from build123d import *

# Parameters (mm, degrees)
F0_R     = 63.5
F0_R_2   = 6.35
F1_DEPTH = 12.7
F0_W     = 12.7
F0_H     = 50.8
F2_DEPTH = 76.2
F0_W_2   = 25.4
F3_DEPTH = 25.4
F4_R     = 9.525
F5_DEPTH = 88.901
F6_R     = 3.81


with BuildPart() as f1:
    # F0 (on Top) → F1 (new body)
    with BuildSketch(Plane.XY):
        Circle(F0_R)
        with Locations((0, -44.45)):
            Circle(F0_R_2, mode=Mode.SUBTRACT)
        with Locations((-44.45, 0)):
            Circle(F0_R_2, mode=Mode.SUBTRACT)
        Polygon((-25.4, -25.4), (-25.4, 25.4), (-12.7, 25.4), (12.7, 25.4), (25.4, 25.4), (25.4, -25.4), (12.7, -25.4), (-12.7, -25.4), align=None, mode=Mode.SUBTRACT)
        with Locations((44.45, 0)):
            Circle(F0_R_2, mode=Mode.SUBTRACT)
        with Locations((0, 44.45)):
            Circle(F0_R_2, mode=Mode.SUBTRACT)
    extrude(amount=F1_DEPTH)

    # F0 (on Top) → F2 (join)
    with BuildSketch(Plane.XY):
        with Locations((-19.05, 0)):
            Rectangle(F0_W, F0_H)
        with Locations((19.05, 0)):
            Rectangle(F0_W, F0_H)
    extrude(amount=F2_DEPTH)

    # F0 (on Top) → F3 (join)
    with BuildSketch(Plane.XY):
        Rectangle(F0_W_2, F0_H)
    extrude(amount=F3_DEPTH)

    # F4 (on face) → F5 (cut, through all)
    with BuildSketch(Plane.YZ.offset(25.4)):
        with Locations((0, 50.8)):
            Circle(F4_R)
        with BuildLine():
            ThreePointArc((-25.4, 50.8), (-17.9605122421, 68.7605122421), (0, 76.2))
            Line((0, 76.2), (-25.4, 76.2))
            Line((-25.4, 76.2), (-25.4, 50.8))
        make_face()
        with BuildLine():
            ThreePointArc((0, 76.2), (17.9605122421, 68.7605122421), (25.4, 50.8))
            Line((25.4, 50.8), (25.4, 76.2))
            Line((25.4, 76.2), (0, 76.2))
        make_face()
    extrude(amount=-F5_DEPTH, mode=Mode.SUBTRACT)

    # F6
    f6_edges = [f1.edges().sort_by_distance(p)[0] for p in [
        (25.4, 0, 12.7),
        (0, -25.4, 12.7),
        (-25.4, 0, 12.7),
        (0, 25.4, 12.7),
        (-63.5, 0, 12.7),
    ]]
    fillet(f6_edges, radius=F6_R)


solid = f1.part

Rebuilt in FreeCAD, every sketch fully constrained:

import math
import FreeCAD as App
import Part
import Sketcher

V = App.Vector
Q = App.Units.Quantity


def edges_at(feature, points):
    """Names of the edges that pass closest to the given points."""
    edges = feature.Shape.Edges
    near = lambda p: min(range(len(edges)), key=lambda i: edges[i].distToShape(Part.Vertex(*p))[0])
    return sorted({f"Edge{near(p) + 1}" for p in points})


def add_polygon(sketch, points):
    """Adds a closed chain of lines whose ends are joined by coincident constraints."""
    first, n = sketch.GeometryCount, len(points)
    for a, b in zip(points, points[1:] + points[:1]):
        sketch.addGeometry(Part.LineSegment(App.Vector(*a, 0), App.Vector(*b, 0)), False)
    for i in range(n):
        sketch.addConstraint(Sketcher.Constraint("Coincident", first + i, 2, first + (i + 1) % n, 1))

doc = App.newDocument("Part")
params = doc.addObject("Spreadsheet::Sheet", "Params")
for row, (alias, value) in enumerate([
    ("sketch1_diameter", "5 in"),
    ("sketch1_diameter2", "0.5 in"),
    ("sketch1_width", "2 in"),
    ("pad1_length", "0.5 in"),
    ("sketch2_height", "2 in"),
    ("sketch2_width", "0.5 in"),
    ("pad2_length", "3 in"),
    ("sketch3_width", "1 in"),
    ("sketch3_height", "2 in"),
    ("pad3_length", "1 in"),
    ("sketch4_radius", "1 in"),
    ("sketch4_diameter", "0.75 in"),
    ("fillet_radius", "0.15 in"),
], start=1):
    params.set(f"A{row}", alias)
    params.set(f"B{row}", "=" + value)
    params.setAlias(f"B{row}", alias)

body = doc.addObject("PartDesign::Body", "Body")

sketch1 = body.newObject("Sketcher::SketchObject", "Sketch")
sketch1.AttachmentSupport = (doc.getObject("XY_Plane"), [""])
sketch1.MapMode = "FlatFace"
sketch1.addGeometry(Part.Circle(V(0, 0, 0), V(0, 0, 1), 64), False)
sketch1.addGeometry(Part.Circle(V(0, -44, 0), V(0, 0, 1), 6), False)
add_polygon(sketch1, [(25, -25), (-25, -25), (-25, 25), (25, 25)])
sketch1.addGeometry(Part.Circle(V(-44, 0, 0), V(0, 0, 1), 6), False)
sketch1.addGeometry(Part.Circle(V(44, 0, 0), V(0, 0, 1), 6), False)
sketch1.addGeometry(Part.Circle(V(0, 44, 0), V(0, 0, 1), 6), False)
sketch1.addConstraint([
    Sketcher.Constraint("Horizontal", 2),
    Sketcher.Constraint("Vertical", 3),
    Sketcher.Constraint("Horizontal", 4),
    Sketcher.Constraint("Vertical", 5),
    Sketcher.Constraint("Coincident", 0, 3, -1, 1),
    Sketcher.Constraint("Equal", 1, 6),
    Sketcher.Constraint("Equal", 6, 7),
    Sketcher.Constraint("Equal", 7, 8),
    Sketcher.Constraint("Symmetric", 6, 3, 7, 3, -1, 1),
    Sketcher.Constraint("Symmetric", 1, 3, 8, 3, -1, 1),
    Sketcher.Constraint("Symmetric", 2, 2, 4, 2, -1, 1),
    Sketcher.Constraint("PointOnObject", 1, 3, -2),
    Sketcher.Constraint("PointOnObject", 6, 3, -1),
    Sketcher.Constraint("Equal", 4, 3),
    Sketcher.Constraint("Diameter", 0, Q("5 in")),
    Sketcher.Constraint("Diameter", 1, Q("0.5 in")),
    Sketcher.Constraint("DistanceX", 2, 2, 2, 1, Q("2 in")),
    Sketcher.Constraint("DistanceX", 6, 3, 7, 3, Q("3.5 in")),
    Sketcher.Constraint("DistanceY", 1, 3, 8, 3, Q("3.5 in")),
])
sketch1.setExpression("Constraints[18]", "Params.sketch1_diameter")
sketch1.setExpression("Constraints[19]", "Params.sketch1_diameter2")
sketch1.setExpression("Constraints[20]", "Params.sketch1_width")
pad1 = body.newObject("PartDesign::Pad", "Pad")
pad1.Profile = sketch1
pad1.setExpression("Length", "Params.pad1_length")

sketch2 = body.newObject("Sketcher::SketchObject", "Sketch001")
sketch2.AttachmentSupport = (doc.getObject("XY_Plane"), [""])
sketch2.MapMode = "FlatFace"
add_polygon(sketch2, [(-25, 25), (-25, -25), (-13, -25), (-13, 25)])
add_polygon(sketch2, [(13, 25), (13, -25), (25, -25), (25, 25)])
sketch2.addConstraint([
    Sketcher.Constraint("Vertical", 0),
    Sketcher.Constraint("Horizontal", 1),
    Sketcher.Constraint("Vertical", 2),
    Sketcher.Constraint("Horizontal", 3),
    Sketcher.Constraint("Vertical", 4),
    Sketcher.Constraint("Horizontal", 5),
    Sketcher.Constraint("Vertical", 6),
    Sketcher.Constraint("Horizontal", 7),
    Sketcher.Constraint("Symmetric", 2, 2, 4, 2, -1, 1),
    Sketcher.Constraint("Symmetric", 0, 2, 6, 2, -1, 1),
    Sketcher.Constraint("Horizontal", 1, 2, 4, 2),
    Sketcher.Constraint("DistanceY", 0, 2, 0, 1, Q("2 in")),
    Sketcher.Constraint("DistanceX", 1, 1, 1, 2, Q("0.5 in")),
    Sketcher.Constraint("DistanceX", 0, 2, -1, 1, Q("1 in")),
])
sketch2.setExpression("Constraints[19]", "Params.sketch2_height")
sketch2.setExpression("Constraints[20]", "Params.sketch2_width")
pad2 = body.newObject("PartDesign::Pad", "Pad001")
pad2.Profile = sketch2
pad2.setExpression("Length", "Params.pad2_length")

sketch3 = body.newObject("Sketcher::SketchObject", "Sketch002")
sketch3.AttachmentSupport = (doc.getObject("XY_Plane"), [""])
sketch3.MapMode = "FlatFace"
add_polygon(sketch3, [(-13, 25), (-13, -25), (13, -25), (13, 25)])
sketch3.addConstraint([
    Sketcher.Constraint("Vertical", 0),
    Sketcher.Constraint("Horizontal", 1),
    Sketcher.Constraint("Vertical", 2),
    Sketcher.Constraint("Horizontal", 3),
    Sketcher.Constraint("Symmetric", 0, 2, 2, 2, -1, 1),
    Sketcher.Constraint("DistanceX", 1, 1, 1, 2, Q("1 in")),
    Sketcher.Constraint("DistanceY", 0, 2, 0, 1, Q("2 in")),
])
sketch3.setExpression("Constraints[9]", "Params.sketch3_width")
sketch3.setExpression("Constraints[10]", "Params.sketch3_height")
pad3 = body.newObject("PartDesign::Pad", "Pad002")
pad3.Profile = sketch3
pad3.setExpression("Length", "Params.pad3_length")

sketch4 = body.newObject("Sketcher::SketchObject", "Sketch003")
sketch4.AttachmentSupport = (doc.getObject("YZ_Plane"), [""])
sketch4.MapMode = "FlatFace"
sketch4.AttachmentOffset = App.Placement(V(0, 0, 1 * 25.4), App.Rotation())
sketch4.addGeometry([
    Part.Circle(V(0, 51, 0), V(0, 0, 1), 10),
    Part.ArcOfCircle(Part.Circle(V(0, 51, 0), V(0, 0, 1), 25), math.radians(90), math.radians(180)),
    Part.LineSegment(V(0, 76, 0), V(-25, 76, 0)),
    Part.LineSegment(V(-25, 76, 0), V(-25, 51, 0)),
    Part.ArcOfCircle(Part.Circle(V(0, 51, 0), V(0, 0, 1), 25), math.radians(0), math.radians(90)),
    Part.LineSegment(V(25, 51, 0), V(25, 76, 0)),
    Part.LineSegment(V(25, 76, 0), V(0, 76, 0)),
], False)
sketch4.addConstraint([
    Sketcher.Constraint("Tangent", 1, 1, 2, 1),
    Sketcher.Constraint("Coincident", 2, 2, 3, 1),
    Sketcher.Constraint("Tangent", 3, 2, 1, 2),
    Sketcher.Constraint("Tangent", 4, 1, 5, 1),
    Sketcher.Constraint("Coincident", 5, 2, 6, 1),
    Sketcher.Constraint("Tangent", 6, 2, 4, 2),
    Sketcher.Constraint("Horizontal", 2),
    Sketcher.Constraint("Vertical", 3),
    Sketcher.Constraint("Vertical", 5),
    Sketcher.Constraint("Horizontal", 6),
    Sketcher.Constraint("Coincident", 1, 3, 0, 3),
    Sketcher.Constraint("Coincident", 4, 3, 0, 3),
    Sketcher.Constraint("Equal", 1, 4),
    Sketcher.Constraint("PointOnObject", 0, 3, -2),
    Sketcher.Constraint("Radius", 1, Q("1 in")),
    Sketcher.Constraint("Diameter", 0, Q("0.75 in")),
    Sketcher.Constraint("DistanceY", -1, 1, 0, 3, Q("2 in")),
])
sketch4.setExpression("Constraints[14]", "Params.sketch4_radius")
sketch4.setExpression("Constraints[15]", "Params.sketch4_diameter")
pocket1 = body.newObject("PartDesign::Pocket", "Pocket")
pocket1.Profile = sketch4
pocket1.Type = "ThroughAll"
doc.recompute()

fillet = body.newObject("PartDesign::Fillet", "Fillet")
fillet.Base = (pocket1, edges_at(pocket1, [
    (25.4, 0, 12.7),
    (0, -25.4, 12.7),
    (-25.4, 0, 12.7),
    (0, 25.4, 12.7),
    (-63.5, 0, 12.7),
]))
fillet.setExpression("Radius", "Params.fillet_radius")

doc.recompute()
